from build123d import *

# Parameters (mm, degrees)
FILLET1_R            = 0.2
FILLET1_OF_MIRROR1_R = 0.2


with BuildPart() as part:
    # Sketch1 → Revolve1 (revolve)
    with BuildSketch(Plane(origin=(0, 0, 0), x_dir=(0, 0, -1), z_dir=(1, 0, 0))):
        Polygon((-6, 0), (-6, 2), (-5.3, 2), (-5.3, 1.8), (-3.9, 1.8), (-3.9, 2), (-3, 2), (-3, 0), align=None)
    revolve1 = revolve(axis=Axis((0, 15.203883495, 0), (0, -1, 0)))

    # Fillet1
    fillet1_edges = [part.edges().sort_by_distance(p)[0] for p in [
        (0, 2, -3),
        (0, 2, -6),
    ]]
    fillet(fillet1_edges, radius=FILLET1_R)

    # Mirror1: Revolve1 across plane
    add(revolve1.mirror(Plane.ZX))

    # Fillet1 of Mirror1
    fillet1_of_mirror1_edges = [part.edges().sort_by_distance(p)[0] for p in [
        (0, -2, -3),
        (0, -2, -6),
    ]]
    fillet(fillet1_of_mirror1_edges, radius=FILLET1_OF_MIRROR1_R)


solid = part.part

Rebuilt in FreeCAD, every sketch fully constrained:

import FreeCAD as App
import Part
import Sketcher
from FreeCAD import Vector
Q = App.Units.Quantity


def edges_at(feature, points):
    """Names of the edges that pass closest to the given points."""
    edges = feature.Shape.Edges
    near = lambda p: min(range(len(edges)), key=lambda i: edges[i].distToShape(Part.Vertex(*p))[0])
    return sorted({f"Edge{near(p) + 1}" for p in points})


def add_polygon(sketch, points):
    """Adds a closed chain of lines whose ends are joined by coincident constraints."""
    first, n = sketch.GeometryCount, len(points)
    for a, b in zip(points, points[1:] + points[:1]):
        sketch.addGeometry(Part.LineSegment(App.Vector(*a, 0), App.Vector(*b, 0)), False)
    for i in range(n):
        sketch.addConstraint(Sketcher.Constraint("Coincident", first + i, 2, first + (i + 1) % n, 1))

doc = App.newDocument("Part")
params = doc.addObject("Spreadsheet::Sheet", "Params")
for row, (alias, value) in enumerate([
    ("sketch1_width", "2 mm"),
    ("sketch1_height", "3 mm"),
    ("sketch1_width2", "0.2 mm"),
    ("sketch1_height2", "0.9 mm"),
    ("sketch1_height3", "1.4 mm"),
    ("revolution_angle", "360 deg"),
    ("fillet_radius", "0.2 mm"),
    ("fillet2_radius", "0.2 mm"),
], start=1):
    params.set(f"A{row}", alias)
    params.set(f"B{row}", "=" + value)
    params.setAlias(f"B{row}", alias)

body = doc.addObject("PartDesign::Body", "Body")

# Sketch on YZ plane
sketch1 = body.newObject("Sketcher::SketchObject", "Sketch")
sketch1.AttachmentSupport = (doc.getObject("YZ_Plane"), [""])
sketch1.MapMode = "FlatFace"
add_polygon(sketch1, [(2, 6), (0, 6), (0, 3), (2, 3), (2, 3.9), (1.8, 3.9), (1.8, 5.3), (2, 5.3)])  # lines 0-7
sketch1.addConstraint(Sketcher.Constraint("Horizontal", 0))
sketch1.addConstraint(Sketcher.Constraint("Vertical", 1))
sketch1.addConstraint(Sketcher.Constraint("Horizontal", 2))
sketch1.addConstraint(Sketcher.Constraint("Vertical", 3))
sketch1.addConstraint(Sketcher.Constraint("Horizontal", 4))
sketch1.addConstraint(Sketcher.Constraint("Vertical", 5))
sketch1.addConstraint(Sketcher.Constraint("Horizontal", 6))
sketch1.addConstraint(Sketcher.Constraint("Vertical", 7))
sketch1.addConstraint(Sketcher.Constraint("PointOnObject", 0, 2, -2))
sketch1.addConstraint(Sketcher.Constraint("Vertical", 3, 2, 6, 2))
sketch1.addConstraint(Sketcher.Constraint("DistanceX", 0, 2, 0, 1, Q("2 mm")))
sketch1.addConstraint(Sketcher.Constraint("DistanceY", 1, 2, 1, 1, Q("3 mm")))
sketch1.addConstraint(Sketcher.Constraint("DistanceX", 4, 2, 4, 1, Q("0.2 mm")))
sketch1.addConstraint(Sketcher.Constraint("DistanceY", 3, 1, 3, 2, Q("0.9 mm")))
sketch1.addConstraint(Sketcher.Constraint("DistanceY", 5, 1, 5, 2, Q("1.4 mm")))
sketch1.addConstraint(Sketcher.Constraint("DistanceY", -1, 1, 0, 2, Q("6 mm")))
sketch1.setExpression("Constraints[18]", "Params.sketch1_width")
sketch1.setExpression("Constraints[19]", "Params.sketch1_height")
sketch1.setExpression("Constraints[20]", "Params.sketch1_width2")
sketch1.setExpression("Constraints[21]", "Params.sketch1_height2")
sketch1.setExpression("Constraints[22]", "Params.sketch1_height3")
revolution = body.newObject("PartDesign::Revolution", "Revolution")
revolution.Profile = sketch1
revolution.ReferenceAxis = (sketch1, ["H_Axis"])
revolution.setExpression("Angle", "Params.revolution_angle")
doc.recompute()

fillet = body.newObject("PartDesign::Fillet", "Fillet")
fillet.Base = (revolution, edges_at(revolution, [(0, 2, -3), (0, 2, -6)]))
fillet.setExpression("Radius", "Params.fillet_radius")
doc.recompute()

mirrored = body.newObject("PartDesign::Mirrored", "Mirrored")
mirrored.Originals = [revolution]
mirrored.MirrorPlane = (doc.getObject("XZ_Plane"), [""])
body.Tip = mirrored
doc.recompute()

fillet2 = body.newObject("PartDesign::Fillet", "Fillet001")
fillet2.Base = (mirrored, edges_at(mirrored, [(0, -2, -3), (0, -2, -6)]))
fillet2.setExpression("Radius", "Params.fillet2_radius")

doc.recompute()
